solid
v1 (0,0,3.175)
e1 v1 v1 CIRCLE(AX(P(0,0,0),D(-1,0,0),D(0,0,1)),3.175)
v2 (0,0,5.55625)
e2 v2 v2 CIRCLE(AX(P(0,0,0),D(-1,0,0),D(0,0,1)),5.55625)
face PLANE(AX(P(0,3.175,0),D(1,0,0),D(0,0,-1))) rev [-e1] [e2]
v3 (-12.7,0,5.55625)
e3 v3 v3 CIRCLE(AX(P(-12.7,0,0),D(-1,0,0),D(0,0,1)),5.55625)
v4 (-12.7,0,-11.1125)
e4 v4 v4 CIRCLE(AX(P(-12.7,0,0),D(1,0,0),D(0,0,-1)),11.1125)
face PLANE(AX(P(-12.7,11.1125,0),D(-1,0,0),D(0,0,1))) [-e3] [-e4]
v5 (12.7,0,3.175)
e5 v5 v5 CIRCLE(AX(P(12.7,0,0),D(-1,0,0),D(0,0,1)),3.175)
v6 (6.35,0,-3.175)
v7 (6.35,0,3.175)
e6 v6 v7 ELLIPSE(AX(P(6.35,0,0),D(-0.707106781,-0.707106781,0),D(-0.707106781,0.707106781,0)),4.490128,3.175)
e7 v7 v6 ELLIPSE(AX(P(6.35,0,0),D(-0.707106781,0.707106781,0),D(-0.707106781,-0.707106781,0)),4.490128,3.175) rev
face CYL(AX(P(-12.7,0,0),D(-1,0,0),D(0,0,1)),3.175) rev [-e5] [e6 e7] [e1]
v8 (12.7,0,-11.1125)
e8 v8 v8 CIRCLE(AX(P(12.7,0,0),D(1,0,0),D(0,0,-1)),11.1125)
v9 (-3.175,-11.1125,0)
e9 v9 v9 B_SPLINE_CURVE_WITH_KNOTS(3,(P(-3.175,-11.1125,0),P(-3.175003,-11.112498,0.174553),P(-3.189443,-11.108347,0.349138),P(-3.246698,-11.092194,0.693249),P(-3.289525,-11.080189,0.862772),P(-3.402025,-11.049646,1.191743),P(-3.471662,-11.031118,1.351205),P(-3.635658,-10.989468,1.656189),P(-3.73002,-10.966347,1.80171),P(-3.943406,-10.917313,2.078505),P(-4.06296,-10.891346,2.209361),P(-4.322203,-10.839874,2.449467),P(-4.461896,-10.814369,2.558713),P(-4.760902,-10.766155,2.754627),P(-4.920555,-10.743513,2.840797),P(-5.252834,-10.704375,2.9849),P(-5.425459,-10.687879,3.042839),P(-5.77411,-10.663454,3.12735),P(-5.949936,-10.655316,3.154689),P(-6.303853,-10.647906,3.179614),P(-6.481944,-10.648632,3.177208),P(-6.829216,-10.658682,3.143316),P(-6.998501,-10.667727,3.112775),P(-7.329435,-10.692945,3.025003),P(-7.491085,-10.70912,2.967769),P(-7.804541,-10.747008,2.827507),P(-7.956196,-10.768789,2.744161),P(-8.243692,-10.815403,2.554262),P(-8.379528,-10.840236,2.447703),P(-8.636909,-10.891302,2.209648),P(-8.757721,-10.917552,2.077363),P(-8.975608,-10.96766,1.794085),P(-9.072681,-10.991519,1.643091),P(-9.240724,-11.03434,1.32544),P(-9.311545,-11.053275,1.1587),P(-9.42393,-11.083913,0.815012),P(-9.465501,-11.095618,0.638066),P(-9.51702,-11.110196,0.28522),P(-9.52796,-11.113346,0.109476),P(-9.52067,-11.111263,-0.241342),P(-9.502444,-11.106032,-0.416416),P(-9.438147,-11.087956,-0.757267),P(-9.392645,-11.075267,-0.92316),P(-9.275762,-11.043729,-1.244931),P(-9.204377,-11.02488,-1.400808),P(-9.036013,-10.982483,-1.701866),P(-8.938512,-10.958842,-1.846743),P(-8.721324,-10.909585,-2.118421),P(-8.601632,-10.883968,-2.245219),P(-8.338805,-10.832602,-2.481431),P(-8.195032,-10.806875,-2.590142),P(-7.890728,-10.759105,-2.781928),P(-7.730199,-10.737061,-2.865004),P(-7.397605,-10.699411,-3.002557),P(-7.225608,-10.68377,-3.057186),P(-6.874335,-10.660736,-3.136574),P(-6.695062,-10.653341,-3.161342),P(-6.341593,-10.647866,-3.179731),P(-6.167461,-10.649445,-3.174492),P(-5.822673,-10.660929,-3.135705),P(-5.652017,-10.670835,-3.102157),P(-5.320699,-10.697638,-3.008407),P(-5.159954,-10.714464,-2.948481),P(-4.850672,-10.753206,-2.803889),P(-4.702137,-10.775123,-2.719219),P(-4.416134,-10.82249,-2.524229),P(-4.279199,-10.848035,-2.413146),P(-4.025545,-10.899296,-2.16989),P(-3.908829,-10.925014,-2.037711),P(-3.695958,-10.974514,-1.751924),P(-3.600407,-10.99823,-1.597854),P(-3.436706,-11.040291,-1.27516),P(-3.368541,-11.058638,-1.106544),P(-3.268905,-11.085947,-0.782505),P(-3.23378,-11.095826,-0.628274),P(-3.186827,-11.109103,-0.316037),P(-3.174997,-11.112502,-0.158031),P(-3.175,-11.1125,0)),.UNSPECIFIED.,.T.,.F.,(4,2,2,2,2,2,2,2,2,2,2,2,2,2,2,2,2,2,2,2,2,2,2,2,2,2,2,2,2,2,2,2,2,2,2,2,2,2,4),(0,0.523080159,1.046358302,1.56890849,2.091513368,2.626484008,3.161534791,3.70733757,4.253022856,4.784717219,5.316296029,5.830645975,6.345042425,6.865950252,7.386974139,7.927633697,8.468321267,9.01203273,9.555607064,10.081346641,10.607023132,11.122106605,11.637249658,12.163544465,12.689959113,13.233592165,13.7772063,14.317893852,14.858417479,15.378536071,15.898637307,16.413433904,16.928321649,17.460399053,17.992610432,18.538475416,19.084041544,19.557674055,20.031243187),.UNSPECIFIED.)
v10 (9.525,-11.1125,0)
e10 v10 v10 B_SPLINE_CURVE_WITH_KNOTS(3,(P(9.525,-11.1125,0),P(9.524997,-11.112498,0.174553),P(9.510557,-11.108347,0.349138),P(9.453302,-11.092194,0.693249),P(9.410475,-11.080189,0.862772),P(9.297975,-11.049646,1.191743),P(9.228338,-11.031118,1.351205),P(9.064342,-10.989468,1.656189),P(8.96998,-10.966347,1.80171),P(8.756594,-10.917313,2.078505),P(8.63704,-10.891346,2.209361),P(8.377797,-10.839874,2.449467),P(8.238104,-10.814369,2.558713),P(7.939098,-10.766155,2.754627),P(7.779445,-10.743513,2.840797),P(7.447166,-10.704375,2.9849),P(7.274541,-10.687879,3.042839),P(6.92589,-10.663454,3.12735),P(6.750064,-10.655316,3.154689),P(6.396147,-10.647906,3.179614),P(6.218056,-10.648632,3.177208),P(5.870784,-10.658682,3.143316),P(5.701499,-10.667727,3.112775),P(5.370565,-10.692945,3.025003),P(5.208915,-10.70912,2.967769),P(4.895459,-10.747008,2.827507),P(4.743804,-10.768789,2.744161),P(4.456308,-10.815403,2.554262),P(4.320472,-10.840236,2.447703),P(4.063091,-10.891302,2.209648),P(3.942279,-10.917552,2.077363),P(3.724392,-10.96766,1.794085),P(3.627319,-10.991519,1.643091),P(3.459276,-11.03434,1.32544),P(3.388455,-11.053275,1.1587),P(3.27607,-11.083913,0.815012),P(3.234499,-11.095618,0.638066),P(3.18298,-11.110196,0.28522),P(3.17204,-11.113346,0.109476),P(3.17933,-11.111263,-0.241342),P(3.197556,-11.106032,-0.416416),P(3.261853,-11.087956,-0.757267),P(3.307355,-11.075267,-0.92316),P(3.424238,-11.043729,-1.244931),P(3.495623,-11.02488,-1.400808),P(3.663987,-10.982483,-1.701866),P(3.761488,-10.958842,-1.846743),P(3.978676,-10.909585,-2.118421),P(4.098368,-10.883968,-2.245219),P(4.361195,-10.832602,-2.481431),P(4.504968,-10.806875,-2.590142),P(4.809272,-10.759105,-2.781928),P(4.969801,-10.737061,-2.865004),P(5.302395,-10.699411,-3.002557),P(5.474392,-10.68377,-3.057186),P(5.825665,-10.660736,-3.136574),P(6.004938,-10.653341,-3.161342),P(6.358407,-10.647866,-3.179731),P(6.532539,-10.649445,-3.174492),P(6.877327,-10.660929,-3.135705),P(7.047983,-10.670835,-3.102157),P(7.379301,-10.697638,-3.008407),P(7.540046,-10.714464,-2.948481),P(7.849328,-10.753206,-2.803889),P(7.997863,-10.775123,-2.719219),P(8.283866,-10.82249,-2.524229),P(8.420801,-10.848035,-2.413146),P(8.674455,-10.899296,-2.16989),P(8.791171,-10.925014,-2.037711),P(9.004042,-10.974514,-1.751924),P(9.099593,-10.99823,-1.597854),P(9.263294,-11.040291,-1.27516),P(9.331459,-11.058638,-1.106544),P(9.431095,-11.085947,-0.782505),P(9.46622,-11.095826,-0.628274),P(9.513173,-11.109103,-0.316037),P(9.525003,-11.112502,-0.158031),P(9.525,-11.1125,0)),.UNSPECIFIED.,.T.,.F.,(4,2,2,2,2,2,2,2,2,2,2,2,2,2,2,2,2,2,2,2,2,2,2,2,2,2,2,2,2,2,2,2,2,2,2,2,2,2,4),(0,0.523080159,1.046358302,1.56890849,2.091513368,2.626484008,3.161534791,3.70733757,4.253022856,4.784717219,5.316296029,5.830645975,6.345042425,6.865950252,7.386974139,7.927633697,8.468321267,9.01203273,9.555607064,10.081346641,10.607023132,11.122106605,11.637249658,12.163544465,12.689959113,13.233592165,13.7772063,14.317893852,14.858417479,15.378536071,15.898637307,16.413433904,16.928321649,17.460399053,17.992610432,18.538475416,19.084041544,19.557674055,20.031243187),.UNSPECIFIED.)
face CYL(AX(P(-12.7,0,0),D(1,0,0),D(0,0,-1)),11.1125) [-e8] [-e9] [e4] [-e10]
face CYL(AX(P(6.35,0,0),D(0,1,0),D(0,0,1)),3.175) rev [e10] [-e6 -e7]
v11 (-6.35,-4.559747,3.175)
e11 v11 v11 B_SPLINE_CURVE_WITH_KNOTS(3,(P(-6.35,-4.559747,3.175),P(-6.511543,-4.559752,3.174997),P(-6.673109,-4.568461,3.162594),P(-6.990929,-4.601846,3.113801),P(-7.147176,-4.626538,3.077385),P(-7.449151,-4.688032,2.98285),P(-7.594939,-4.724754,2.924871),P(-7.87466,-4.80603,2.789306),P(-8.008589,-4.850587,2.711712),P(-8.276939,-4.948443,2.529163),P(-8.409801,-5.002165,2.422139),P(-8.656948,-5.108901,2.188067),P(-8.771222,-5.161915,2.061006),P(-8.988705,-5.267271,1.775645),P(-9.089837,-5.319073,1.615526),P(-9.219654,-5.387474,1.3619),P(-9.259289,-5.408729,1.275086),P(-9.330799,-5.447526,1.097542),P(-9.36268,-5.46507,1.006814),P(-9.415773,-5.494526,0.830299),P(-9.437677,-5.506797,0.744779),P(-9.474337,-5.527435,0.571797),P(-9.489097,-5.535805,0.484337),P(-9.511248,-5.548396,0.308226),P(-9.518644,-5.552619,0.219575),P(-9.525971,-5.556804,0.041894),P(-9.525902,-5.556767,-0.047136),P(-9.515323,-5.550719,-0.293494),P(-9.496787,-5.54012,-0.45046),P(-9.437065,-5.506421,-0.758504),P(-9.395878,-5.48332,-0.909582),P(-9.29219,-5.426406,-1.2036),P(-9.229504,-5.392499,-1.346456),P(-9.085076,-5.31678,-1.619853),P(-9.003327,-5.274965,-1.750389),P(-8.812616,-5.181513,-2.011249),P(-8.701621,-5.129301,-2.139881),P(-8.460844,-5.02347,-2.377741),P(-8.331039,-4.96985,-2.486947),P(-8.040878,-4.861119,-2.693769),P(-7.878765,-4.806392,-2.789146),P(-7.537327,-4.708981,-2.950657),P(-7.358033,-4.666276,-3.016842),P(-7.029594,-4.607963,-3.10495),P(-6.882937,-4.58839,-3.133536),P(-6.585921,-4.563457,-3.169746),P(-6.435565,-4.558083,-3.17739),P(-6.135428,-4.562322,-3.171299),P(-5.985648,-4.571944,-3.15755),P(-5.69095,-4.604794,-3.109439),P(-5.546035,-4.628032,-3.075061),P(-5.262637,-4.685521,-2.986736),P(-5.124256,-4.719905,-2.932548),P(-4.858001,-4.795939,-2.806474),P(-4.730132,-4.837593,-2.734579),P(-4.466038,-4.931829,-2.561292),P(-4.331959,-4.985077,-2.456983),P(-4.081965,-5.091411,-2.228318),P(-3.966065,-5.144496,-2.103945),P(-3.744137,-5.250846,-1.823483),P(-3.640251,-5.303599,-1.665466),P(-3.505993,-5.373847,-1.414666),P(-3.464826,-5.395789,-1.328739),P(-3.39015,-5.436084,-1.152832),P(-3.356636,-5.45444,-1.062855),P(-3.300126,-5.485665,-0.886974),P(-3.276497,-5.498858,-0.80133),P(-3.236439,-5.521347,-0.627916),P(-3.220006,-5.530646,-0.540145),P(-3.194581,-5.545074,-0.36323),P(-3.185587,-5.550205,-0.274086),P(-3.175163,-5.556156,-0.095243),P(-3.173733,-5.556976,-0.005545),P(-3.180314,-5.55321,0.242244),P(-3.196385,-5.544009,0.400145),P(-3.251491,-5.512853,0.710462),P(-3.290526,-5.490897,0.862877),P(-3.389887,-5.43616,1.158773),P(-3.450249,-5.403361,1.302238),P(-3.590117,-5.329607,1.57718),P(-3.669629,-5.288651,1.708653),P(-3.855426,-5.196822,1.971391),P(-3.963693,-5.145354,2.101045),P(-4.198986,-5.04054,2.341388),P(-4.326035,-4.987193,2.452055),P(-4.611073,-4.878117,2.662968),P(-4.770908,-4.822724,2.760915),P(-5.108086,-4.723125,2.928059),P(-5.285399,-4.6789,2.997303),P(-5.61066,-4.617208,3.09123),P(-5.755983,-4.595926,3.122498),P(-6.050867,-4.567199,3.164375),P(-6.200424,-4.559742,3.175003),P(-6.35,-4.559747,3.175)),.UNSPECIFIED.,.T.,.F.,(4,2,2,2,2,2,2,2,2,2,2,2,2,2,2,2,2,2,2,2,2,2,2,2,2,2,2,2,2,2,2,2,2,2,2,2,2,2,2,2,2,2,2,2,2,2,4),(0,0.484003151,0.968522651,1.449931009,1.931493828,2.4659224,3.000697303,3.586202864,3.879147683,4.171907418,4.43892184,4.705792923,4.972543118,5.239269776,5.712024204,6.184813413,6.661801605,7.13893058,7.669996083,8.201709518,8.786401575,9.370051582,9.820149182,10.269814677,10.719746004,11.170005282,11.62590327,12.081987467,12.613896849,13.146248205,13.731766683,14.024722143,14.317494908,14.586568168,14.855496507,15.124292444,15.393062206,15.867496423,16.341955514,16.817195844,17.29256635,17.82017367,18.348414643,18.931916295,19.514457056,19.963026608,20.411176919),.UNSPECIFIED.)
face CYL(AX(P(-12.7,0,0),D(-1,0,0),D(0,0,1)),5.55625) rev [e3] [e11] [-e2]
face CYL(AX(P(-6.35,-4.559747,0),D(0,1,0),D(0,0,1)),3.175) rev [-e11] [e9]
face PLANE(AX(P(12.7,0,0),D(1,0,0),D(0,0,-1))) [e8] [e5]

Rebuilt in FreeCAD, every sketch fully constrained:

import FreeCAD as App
import Part
import Sketcher
from FreeCAD import Vector
Q = App.Units.Quantity

doc = App.newDocument("Part")
body = doc.addObject("PartDesign::Body", "Body")

# Sketch on XY plane
sketch1 = body.newObject("Sketcher::SketchObject", "Sketch")
sketch1.AttachmentSupport = (doc.getObject("XY_Plane"), [""])
sketch1.MapMode = "FlatFace"
sketch1.addGeometry([
    Part.LineSegment(Vector(-13, 11, 0), Vector(-13, 0, 0)),
    Part.LineSegment(Vector(-13, 0, 0), Vector(13, 0, 0)),
    Part.LineSegment(Vector(13, 0, 0), Vector(13, 11, 0)),
    Part.LineSegment(Vector(13, 11, 0), Vector(-13, 11, 0)),
], False)
sketch1.addConstraint([
    Sketcher.Constraint("Coincident", 0, 2, 1, 1),
    Sketcher.Constraint("Coincident", 1, 2, 2, 1),
    Sketcher.Constraint("Coincident", 2, 2, 3, 1),
    Sketcher.Constraint("Coincident", 3, 2, 0, 1),
    Sketcher.Constraint("Vertical", 0),
    Sketcher.Constraint("Horizontal", 1),
    Sketcher.Constraint("Vertical", 2),
    Sketcher.Constraint("Horizontal", 3),
    Sketcher.Constraint("Symmetric", 0, 2, 1, 2, -1, 1),
    Sketcher.Constraint("DistanceX", 1, 1, 1, 2, Q("1 in")),
    Sketcher.Constraint("DistanceY", 0, 2, 0, 1, Q("0.4375 in")),
])
revolution = body.newObject("PartDesign::Revolution", "Revolution")
revolution.Profile = sketch1
revolution.ReferenceAxis = (sketch1, ["H_Axis"])
revolution.Angle = 360

# Sketch on YZ plane
sketch2 = body.newObject("Sketcher::SketchObject", "Sketch001")
sketch2.AttachmentSupport = (doc.getObject("YZ_Plane"), [""])
sketch2.MapMode = "FlatFace"
sketch2.AttachmentOffset = App.Placement(Vector(0, 0, -0.5 * 25.4), App.Rotation())
sketch2.addGeometry(Part.Circle(Vector(0, 0, 0), Vector(0, 0, 1), 3.2), False)
sketch2.addConstraint([
    Sketcher.Constraint("Coincident", 0, 3, -1, 1),
    Sketcher.Constraint("Diameter", 0, Q("0.25 in")),
])
doc.recompute()
hole = body.newObject("PartDesign::Hole", "Hole")
hole.Profile = sketch2
hole.ThreadType = "None"
hole.Diameter = Q("0.25 in")
hole.DepthType = "ThroughAll"
hole.HoleCutType = "Counterbore"
hole.HoleCutDiameter = Q("0.4375 in")
hole.HoleCutDepth = Q("0.5 in")
hole.Reversed = True

# Sketch on YZ plane
sketch3 = body.newObject("Sketcher::SketchObject", "Sketch002")
sketch3.AttachmentSupport = (doc.getObject("YZ_Plane"), [""])
sketch3.MapMode = "FlatFace"
sketch3.AttachmentOffset = App.Placement(Vector(0, 0, 0.25 * 25.4), App.Rotation())
sketch3.addGeometry([
    Part.LineSegment(Vector(-11.1, 0, 0), Vector(0, 0, 0)),
    Part.LineSegment(Vector(0, 0, 0), Vector(0, 3.2, 0)),
    Part.LineSegment(Vector(0, 3.2, 0), Vector(-11.1, 3.2, 0)),
    Part.LineSegment(Vector(-11.1, 3.2, 0), Vector(-11.1, 0, 0)),
], False)
sketch3.addConstraint([
    Sketcher.Constraint("Coincident", 0, 2, 1, 1),
    Sketcher.Constraint("Coincident", 1, 2, 2, 1),
    Sketcher.Constraint("Coincident", 2, 2, 3, 1),
    Sketcher.Constraint("Coincident", 3, 2, 0, 1),
    Sketcher.Constraint("Horizontal", 0),
    Sketcher.Constraint("Vertical", 1),
    Sketcher.Constraint("Horizontal", 2),
    Sketcher.Constraint("Vertical", 3),
    Sketcher.Constraint("Coincident", 0, 2, -1, 1),
    Sketcher.Constraint("DistanceX", 0, 1, 0, 2, Q("0.4375 in")),
    Sketcher.Constraint("DistanceY", 1, 1, 1, 2, Q("0.125 in")),
])
groove = body.newObject("PartDesign::Groove", "Groove")
groove.Profile = sketch3
groove.ReferenceAxis = (sketch3, ["H_Axis"])
groove.Angle = 360

# Sketch on XZ plane
sketch4 = body.newObject("Sketcher::SketchObject", "Sketch003")
sketch4.AttachmentSupport = (doc.getObject("XZ_Plane"), [""])
sketch4.MapMode = "FlatFace"
sketch4.AttachmentOffset = App.Placement(Vector(0, 0, 4.559747), App.Rotation())
sketch4.addGeometry(Part.Circle(Vector(-6.3, 0, 0), Vector(0, 0, 1), 3.2), False)
sketch4.addConstraint([
    Sketcher.Constraint("PointOnObject", 0, 3, -1),
    Sketcher.Constraint("Diameter", 0, Q("0.25 in")),
    Sketcher.Constraint("DistanceX", 0, 3, -1, 1, Q("0.25 in")),
])
doc.recompute()
hole2 = body.newObject("PartDesign::Hole", "Hole001")
hole2.Profile = sketch4
hole2.ThreadType = "None"
hole2.Diameter = Q("0.25 in")
hole2.DepthType = "Dimension"
hole2.Depth = 6.552753
hole2.DrillPoint = "Flat"
hole2.Reversed = True

doc.recompute()
